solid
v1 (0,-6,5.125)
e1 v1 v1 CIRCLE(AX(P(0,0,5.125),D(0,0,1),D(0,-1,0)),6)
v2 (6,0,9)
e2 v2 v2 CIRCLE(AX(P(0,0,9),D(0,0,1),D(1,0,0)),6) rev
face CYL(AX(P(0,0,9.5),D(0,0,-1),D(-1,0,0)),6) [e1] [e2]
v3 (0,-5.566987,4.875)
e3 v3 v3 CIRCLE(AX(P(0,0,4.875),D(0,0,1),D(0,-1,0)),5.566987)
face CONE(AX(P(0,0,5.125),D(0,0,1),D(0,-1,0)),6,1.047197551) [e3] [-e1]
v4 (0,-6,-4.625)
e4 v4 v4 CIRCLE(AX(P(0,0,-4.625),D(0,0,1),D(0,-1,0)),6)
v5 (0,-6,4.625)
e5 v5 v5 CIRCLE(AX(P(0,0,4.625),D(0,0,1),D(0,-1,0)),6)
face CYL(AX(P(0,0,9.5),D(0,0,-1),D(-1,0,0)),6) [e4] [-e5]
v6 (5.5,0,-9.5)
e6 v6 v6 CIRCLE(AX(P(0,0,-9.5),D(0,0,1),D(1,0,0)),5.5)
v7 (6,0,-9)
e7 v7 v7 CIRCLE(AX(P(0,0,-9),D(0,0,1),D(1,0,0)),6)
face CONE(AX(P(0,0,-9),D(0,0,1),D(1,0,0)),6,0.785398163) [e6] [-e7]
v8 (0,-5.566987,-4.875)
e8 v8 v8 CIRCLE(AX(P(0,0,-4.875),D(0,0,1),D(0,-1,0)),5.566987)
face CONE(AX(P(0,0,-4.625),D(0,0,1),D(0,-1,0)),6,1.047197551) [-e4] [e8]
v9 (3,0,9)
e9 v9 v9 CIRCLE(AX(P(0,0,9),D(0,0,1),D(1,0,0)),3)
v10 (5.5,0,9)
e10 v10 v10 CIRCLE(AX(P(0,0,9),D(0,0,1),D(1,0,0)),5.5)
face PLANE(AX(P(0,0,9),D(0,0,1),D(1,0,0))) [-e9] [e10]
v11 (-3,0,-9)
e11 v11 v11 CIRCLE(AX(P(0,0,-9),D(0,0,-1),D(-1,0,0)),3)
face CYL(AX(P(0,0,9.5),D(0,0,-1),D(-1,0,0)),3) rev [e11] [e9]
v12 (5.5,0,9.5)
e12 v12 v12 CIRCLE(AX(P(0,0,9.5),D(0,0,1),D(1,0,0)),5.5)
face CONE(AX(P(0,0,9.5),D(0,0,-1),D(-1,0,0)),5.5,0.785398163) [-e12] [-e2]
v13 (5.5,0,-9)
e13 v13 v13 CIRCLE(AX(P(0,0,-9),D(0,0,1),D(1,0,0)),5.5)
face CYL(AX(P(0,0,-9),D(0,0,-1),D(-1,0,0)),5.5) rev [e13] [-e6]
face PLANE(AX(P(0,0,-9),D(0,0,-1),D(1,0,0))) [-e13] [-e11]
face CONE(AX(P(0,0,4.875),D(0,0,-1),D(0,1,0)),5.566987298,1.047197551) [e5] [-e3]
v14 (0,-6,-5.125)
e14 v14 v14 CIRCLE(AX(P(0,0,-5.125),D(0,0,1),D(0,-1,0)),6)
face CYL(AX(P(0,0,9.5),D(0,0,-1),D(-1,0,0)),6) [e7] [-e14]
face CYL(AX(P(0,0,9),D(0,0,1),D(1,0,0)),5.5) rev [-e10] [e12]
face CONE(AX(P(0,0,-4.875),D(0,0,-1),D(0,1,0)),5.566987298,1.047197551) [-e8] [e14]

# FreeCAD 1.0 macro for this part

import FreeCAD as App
import Part
import Sketcher
Q = App.Units.Quantity


def edges_at(feature, points):
    """Names of the edges that pass closest to the given points."""
    edges = feature.Shape.Edges
    near = lambda p: min(range(len(edges)), key=lambda i: edges[i].distToShape(Part.Vertex(*p))[0])
    return sorted({f"Edge{near(p) + 1}" for p in points})


def add_polygon(sketch, points):
    """Adds a closed chain of lines whose ends are joined by coincident constraints."""
    first, n = sketch.GeometryCount, len(points)
    for a, b in zip(points, points[1:] + points[:1]):
        sketch.addGeometry(Part.LineSegment(App.Vector(*a, 0), App.Vector(*b, 0)), False)
    for i in range(n):
        sketch.addConstraint(Sketcher.Constraint("Coincident", first + i, 2, first + (i + 1) % n, 1))

doc = App.newDocument("Part")
body = doc.addObject("PartDesign::Body", "Body")

# Sketch on XY plane
sketch1 = body.newObject("Sketcher::SketchObject", "Sketch")
sketch1.AttachmentSupport = (doc.getObject("XY_Plane"), [""])
sketch1.MapMode = "FlatFace"
sketch1.addGeometry([
    Part.Circle(App.Vector(0, 0, 0), App.Vector(0, 0, 1), 6),
    Part.Circle(App.Vector(0, 0, 0), App.Vector(0, 0, 1), 3),
], False)
sketch1.addConstraint([
    Sketcher.Constraint("Coincident", 0, 3, -1, 1),
    Sketcher.Constraint("Coincident", 1, 3, -1, 1),
    Sketcher.Constraint("Diameter", 0, 12.0),
    Sketcher.Constraint("Diameter", 1, 6.0),
])
pad1 = body.newObject("PartDesign::Pad", "Pad")
pad1.Profile = sketch1
pad1.Length = 19
pad1.Midplane = True
doc.recompute()

chamfer = body.newObject("PartDesign::Chamfer", "Chamfer")
chamfer.Base = (pad1, edges_at(pad1, [(-6, 0, -9.5), (-6, 0, 9.5)]))
chamfer.Size = 0.5

# Sketch on XY plane
sketch2 = body.newObject("Sketcher::SketchObject", "Sketch001")
sketch2.AttachmentSupport = (doc.getObject("XY_Plane"), [""])
sketch2.MapMode = "FlatFace"
sketch2.AttachmentOffset = App.Placement(App.Vector(0, 0, 9.5), App.Rotation())
sketch2.addGeometry(Part.Circle(App.Vector(0, 0, 0), App.Vector(0, 0, 1), 5.5), False)
sketch2.addConstraint([
    Sketcher.Constraint("Coincident", 0, 3, -1, 1),
    Sketcher.Constraint("Diameter", 0, 11.0),
])
pocket1 = body.newObject("PartDesign::Pocket", "Pocket")
pocket1.Profile = sketch2
pocket1.Length = 0.5
doc.recompute()

mirrored = body.newObject("PartDesign::Mirrored", "Mirrored")
mirrored.Originals = [pocket1]
mirrored.MirrorPlane = (doc.getObject("XY_Plane"), [""])
body.Tip = mirrored

# Sketch on YZ plane
sketch3 = body.newObject("Sketcher::SketchObject", "Sketch002")
sketch3.AttachmentSupport = (doc.getObject("YZ_Plane"), [""])
sketch3.MapMode = "FlatFace"
add_polygon(sketch3, [(6, 4.625), (6, 5.125), (5.566987, 4.875)])  # lines 0-2
add_polygon(sketch3, [(6, -5.125), (6, -4.625), (5.566987, -4.875)])  # lines 3-5
sketch3.addConstraint([
    Sketcher.Constraint("Vertical", 0),
    Sketcher.Constraint("Vertical", 3),
    Sketcher.Constraint("Symmetric", 2, 2, 3, 2, -1),
    Sketcher.Constraint("Symmetric", 1, 2, 4, 2, -1),
    Sketcher.Constraint("Parallel", 1, 4),
    Sketcher.Constraint("Parallel", 2, 5),
    Sketcher.Constraint("Angle", 1, Q("-150 deg")),
    Sketcher.Constraint("DistanceY", 0, 1, 0, 2, 0.5),
    Sketcher.Constraint("DistanceX", -1, 1, 0, 2, 6.0),
    Sketcher.Constraint("DistanceY", 4, 2, 0, 2, 10.0),
])
groove = body.newObject("PartDesign::Groove", "Groove")
groove.Profile = sketch3
groove.ReferenceAxis = (sketch3, ["V_Axis"])
groove.Angle = 360

doc.recompute()
